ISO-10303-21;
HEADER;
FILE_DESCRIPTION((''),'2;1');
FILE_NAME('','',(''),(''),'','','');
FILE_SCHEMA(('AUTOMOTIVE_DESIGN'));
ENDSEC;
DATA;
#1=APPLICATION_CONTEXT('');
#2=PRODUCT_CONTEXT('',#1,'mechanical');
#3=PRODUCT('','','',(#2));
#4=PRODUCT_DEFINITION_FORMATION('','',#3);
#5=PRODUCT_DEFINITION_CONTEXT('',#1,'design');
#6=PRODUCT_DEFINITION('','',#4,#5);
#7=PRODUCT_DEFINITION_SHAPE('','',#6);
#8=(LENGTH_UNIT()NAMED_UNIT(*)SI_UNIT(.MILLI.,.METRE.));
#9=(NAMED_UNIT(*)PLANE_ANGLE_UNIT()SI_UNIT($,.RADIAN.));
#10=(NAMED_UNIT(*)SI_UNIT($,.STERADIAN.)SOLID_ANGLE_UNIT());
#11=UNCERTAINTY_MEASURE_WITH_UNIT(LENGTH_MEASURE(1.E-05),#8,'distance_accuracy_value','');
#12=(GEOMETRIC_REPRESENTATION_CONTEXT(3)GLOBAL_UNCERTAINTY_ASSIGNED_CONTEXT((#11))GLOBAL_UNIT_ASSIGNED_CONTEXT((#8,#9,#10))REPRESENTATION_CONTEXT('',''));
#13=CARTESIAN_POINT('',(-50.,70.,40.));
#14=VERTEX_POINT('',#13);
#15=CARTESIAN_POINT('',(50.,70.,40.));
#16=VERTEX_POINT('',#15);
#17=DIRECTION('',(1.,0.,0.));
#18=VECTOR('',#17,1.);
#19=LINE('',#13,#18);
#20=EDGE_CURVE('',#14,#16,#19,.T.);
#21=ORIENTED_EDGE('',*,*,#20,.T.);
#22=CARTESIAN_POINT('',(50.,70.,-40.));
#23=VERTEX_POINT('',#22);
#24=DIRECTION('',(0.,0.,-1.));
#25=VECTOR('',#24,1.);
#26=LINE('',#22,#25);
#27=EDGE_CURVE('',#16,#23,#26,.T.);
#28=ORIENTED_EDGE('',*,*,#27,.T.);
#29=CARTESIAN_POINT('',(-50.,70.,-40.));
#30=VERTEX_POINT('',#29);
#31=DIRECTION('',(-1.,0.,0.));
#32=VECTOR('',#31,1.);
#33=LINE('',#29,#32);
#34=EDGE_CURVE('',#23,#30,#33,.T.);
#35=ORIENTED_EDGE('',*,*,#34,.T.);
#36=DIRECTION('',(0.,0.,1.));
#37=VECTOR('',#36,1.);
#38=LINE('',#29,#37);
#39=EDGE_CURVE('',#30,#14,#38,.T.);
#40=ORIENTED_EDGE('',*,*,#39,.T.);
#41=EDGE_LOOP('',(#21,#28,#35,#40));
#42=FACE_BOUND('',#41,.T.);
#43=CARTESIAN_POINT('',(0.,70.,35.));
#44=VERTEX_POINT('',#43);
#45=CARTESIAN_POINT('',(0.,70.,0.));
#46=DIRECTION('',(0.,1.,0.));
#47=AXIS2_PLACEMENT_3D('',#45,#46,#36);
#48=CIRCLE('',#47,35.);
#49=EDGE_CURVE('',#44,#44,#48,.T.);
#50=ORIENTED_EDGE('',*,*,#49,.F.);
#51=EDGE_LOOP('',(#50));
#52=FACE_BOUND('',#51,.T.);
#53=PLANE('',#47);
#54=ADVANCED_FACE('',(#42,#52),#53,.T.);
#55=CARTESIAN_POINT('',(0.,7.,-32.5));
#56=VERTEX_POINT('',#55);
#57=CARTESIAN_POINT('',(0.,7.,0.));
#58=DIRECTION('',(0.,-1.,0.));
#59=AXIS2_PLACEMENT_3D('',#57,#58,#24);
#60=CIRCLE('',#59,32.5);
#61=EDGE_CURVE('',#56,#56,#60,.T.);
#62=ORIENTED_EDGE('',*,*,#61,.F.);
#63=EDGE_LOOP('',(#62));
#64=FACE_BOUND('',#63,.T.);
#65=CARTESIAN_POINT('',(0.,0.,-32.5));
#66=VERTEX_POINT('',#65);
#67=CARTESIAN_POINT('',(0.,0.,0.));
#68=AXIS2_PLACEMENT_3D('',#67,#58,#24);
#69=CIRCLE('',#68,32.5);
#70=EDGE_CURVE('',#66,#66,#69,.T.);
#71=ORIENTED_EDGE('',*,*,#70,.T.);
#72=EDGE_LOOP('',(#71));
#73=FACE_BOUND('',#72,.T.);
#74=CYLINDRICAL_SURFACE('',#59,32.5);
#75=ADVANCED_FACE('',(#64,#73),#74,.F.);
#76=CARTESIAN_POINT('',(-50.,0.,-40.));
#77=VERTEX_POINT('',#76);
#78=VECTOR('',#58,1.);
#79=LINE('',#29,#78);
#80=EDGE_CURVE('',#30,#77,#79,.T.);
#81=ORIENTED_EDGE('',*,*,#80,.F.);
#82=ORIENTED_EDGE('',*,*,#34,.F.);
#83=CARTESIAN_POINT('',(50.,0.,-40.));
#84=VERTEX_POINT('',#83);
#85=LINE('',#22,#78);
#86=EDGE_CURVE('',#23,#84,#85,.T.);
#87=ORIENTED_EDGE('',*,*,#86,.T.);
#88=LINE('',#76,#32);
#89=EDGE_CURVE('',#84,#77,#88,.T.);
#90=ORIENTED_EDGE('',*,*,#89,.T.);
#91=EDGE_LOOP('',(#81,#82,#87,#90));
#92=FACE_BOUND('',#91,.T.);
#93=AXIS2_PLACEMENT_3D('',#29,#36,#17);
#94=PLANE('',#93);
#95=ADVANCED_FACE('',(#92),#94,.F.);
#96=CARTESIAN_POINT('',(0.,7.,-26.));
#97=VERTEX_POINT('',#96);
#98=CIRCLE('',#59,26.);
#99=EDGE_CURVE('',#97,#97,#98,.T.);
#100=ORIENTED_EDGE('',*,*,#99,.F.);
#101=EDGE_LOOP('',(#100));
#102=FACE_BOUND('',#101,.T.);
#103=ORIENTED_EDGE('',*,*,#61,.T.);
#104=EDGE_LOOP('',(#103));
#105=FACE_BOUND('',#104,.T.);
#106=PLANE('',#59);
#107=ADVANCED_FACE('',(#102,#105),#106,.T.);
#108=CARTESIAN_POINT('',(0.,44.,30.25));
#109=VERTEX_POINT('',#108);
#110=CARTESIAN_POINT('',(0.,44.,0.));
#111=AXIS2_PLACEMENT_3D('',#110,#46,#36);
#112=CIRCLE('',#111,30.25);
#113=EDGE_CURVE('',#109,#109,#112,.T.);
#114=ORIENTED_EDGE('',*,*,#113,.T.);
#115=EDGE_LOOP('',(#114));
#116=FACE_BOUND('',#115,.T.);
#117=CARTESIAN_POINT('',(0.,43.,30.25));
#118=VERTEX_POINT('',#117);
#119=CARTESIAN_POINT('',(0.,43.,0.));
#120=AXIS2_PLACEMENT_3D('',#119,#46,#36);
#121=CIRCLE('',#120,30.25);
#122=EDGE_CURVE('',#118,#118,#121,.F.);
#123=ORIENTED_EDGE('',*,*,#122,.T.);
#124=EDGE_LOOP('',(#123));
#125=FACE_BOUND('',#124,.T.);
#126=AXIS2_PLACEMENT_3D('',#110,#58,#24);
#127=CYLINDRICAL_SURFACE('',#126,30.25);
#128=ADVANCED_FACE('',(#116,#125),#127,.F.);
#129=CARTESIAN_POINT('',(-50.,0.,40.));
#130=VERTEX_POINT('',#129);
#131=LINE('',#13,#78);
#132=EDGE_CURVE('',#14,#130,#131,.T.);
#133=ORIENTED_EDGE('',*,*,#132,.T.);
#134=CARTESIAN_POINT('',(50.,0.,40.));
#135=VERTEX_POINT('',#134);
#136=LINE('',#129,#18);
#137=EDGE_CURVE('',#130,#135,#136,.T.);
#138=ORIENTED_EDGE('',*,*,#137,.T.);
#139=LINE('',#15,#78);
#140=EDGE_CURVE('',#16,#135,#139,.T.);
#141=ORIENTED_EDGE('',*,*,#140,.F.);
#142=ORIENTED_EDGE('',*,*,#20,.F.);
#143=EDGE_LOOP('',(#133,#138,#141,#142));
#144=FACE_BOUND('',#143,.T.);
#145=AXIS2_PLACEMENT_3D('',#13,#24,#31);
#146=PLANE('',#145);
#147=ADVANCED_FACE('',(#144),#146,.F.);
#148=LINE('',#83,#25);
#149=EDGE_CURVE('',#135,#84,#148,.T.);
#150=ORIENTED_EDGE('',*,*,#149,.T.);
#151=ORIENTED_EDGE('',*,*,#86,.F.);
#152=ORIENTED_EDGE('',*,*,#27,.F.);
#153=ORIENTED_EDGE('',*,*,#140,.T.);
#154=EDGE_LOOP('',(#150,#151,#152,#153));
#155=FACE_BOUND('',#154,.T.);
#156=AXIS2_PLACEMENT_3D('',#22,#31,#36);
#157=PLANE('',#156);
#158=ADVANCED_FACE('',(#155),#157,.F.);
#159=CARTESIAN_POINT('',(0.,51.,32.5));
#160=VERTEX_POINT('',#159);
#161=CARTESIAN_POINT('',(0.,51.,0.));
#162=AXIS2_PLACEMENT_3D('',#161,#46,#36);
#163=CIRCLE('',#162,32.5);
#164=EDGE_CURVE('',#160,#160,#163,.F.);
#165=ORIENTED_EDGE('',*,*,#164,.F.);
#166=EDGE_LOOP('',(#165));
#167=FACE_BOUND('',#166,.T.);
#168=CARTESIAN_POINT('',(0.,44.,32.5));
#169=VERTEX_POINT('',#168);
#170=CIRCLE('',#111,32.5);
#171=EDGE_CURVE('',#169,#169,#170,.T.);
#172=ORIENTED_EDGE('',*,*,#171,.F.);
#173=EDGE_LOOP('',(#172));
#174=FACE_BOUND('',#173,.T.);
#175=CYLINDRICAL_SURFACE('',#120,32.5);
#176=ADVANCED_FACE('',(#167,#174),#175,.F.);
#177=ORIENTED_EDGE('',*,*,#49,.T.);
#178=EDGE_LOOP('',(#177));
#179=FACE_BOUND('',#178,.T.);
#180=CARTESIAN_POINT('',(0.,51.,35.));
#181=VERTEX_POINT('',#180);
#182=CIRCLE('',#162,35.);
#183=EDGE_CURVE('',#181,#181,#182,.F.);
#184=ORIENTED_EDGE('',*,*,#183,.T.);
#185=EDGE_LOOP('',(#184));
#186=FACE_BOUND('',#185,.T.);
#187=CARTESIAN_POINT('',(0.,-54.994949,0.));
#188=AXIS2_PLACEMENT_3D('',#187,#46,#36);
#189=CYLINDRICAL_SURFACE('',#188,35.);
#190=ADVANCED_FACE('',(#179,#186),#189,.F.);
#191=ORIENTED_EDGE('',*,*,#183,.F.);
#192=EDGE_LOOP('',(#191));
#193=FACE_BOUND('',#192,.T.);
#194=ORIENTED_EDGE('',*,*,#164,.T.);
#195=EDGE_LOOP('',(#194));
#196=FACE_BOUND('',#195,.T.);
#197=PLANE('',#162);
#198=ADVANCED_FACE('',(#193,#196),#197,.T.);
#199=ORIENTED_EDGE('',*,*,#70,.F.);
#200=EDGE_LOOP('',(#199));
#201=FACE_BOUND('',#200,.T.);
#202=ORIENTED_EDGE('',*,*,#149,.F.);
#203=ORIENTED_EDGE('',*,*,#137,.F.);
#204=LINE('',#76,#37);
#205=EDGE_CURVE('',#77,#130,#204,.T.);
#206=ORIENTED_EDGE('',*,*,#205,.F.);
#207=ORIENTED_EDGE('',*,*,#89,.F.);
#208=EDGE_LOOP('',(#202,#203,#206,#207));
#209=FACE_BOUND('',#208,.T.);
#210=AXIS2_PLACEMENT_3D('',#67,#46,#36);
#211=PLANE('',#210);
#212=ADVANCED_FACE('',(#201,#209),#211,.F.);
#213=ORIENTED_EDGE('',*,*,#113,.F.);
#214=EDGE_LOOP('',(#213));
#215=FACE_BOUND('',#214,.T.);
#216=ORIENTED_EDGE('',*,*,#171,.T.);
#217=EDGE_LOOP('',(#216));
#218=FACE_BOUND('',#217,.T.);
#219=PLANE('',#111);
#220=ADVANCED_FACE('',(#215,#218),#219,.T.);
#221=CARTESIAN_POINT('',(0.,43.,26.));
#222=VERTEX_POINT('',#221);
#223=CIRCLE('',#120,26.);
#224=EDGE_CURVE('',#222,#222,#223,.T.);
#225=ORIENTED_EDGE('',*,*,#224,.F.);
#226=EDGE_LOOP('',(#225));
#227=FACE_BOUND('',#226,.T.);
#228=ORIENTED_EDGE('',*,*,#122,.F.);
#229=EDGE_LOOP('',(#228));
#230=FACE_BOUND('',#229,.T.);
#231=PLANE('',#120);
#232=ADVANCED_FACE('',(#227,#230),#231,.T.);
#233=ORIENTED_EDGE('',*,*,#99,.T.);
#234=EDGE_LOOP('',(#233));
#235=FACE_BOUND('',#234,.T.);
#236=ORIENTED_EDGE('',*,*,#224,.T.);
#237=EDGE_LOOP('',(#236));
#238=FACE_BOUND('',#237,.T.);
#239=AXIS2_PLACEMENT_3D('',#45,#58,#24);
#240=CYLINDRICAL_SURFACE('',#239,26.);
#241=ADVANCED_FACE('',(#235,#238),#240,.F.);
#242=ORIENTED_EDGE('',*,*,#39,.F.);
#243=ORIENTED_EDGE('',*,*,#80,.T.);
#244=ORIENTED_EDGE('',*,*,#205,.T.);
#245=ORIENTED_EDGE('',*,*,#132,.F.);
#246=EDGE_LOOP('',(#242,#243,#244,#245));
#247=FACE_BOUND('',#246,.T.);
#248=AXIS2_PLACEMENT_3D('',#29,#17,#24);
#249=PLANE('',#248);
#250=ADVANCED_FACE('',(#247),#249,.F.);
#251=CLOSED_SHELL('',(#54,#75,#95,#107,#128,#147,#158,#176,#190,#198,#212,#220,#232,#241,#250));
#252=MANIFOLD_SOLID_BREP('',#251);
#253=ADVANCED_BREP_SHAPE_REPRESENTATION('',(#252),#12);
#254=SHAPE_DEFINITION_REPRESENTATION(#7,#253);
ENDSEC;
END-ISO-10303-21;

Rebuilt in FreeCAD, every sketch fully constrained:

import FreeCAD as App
import Part
import Sketcher
from FreeCAD import Vector


def add_polygon(sketch, points):
    """Adds a closed chain of lines whose ends are joined by coincident constraints."""
    first, n = sketch.GeometryCount, len(points)
    for a, b in zip(points, points[1:] + points[:1]):
        sketch.addGeometry(Part.LineSegment(App.Vector(*a, 0), App.Vector(*b, 0)), False)
    for i in range(n):
        sketch.addConstraint(Sketcher.Constraint("Coincident", first + i, 2, first + (i + 1) % n, 1))

doc = App.newDocument("Part")
body = doc.addObject("PartDesign::Body", "Body")

# Sketch on XZ plane
sketch1 = body.newObject("Sketcher::SketchObject", "Sketch")
sketch1.AttachmentSupport = (doc.getObject("XZ_Plane"), [""])
sketch1.MapMode = "FlatFace"
add_polygon(sketch1, [(-50, -40), (-50, 40), (50, 40), (50, -40)])  # lines 0-3
sketch1.addGeometry(Part.Circle(Vector(0, 0, 0), Vector(0, 0, 1), 26), False)  # 4
sketch1.addConstraint([
    Sketcher.Constraint("Vertical", 0),
    Sketcher.Constraint("Horizontal", 1),
    Sketcher.Constraint("Vertical", 2),
    Sketcher.Constraint("Horizontal", 3),
    Sketcher.Constraint("Coincident", 4, 3, -1, 1),
    Sketcher.Constraint("Symmetric", 0, 2, 2, 2, -1, 1),
    Sketcher.Constraint("Diameter", 4, 52.0),
    Sketcher.Constraint("DistanceX", 1, 1, 1, 2, 100.0),
    Sketcher.Constraint("DistanceY", 0, 1, 0, 2, 80.0),
])
pad1 = body.newObject("PartDesign::Pad", "Pad")
pad1.Profile = sketch1
pad1.Length = 70
pad1.Reversed = True

# Sketch on XZ plane
sketch2 = body.newObject("Sketcher::SketchObject", "Sketch001")
sketch2.AttachmentSupport = (doc.getObject("XZ_Plane"), [""])
sketch2.MapMode = "FlatFace"
sketch2.AttachmentOffset = App.Placement(Vector(0, 0, -70), App.Rotation())
sketch2.addGeometry(Part.Circle(Vector(0, 0, 0), Vector(0, 0, 1), 32.5), False)
sketch2.addConstraint([
    Sketcher.Constraint("Coincident", 0, 3, -1, 1),
    Sketcher.Constraint("Diameter", 0, 65.0),
])
pocket1 = body.newObject("PartDesign::Pocket", "Pocket")
pocket1.Profile = sketch2
pocket1.Length = 27
pocket1.Reversed = True

# Sketch on XZ plane
sketch3 = body.newObject("Sketcher::SketchObject", "Sketch002")
sketch3.AttachmentSupport = (doc.getObject("XZ_Plane"), [""])
sketch3.MapMode = "FlatFace"
sketch3.AttachmentOffset = App.Placement(Vector(0, 0, -44), App.Rotation())
sketch3.addGeometry([
    Part.Circle(Vector(0, 0, 0), Vector(0, 0, 1), 32.5),
    Part.Circle(Vector(0, 0, 0), Vector(0, 0, 1), 30.25),
], False)
sketch3.addConstraint([
    Sketcher.Constraint("Coincident", 0, 3, -1, 1),
    Sketcher.Constraint("Coincident", 1, 3, -1, 1),
    Sketcher.Constraint("Diameter", 0, 65.0),
    Sketcher.Constraint("Diameter", 1, 60.5),
])
pad2 = body.newObject("PartDesign::Pad", "Pad001")
pad2.Profile = sketch3
pad2.Length = 1

# Sketch on XZ plane
sketch4 = body.newObject("Sketcher::SketchObject", "Sketch003")
sketch4.AttachmentSupport = (doc.getObject("XZ_Plane"), [""])
sketch4.MapMode = "FlatFace"
sketch4.AttachmentOffset = App.Placement(Vector(0, 0, -70), App.Rotation())
sketch4.addGeometry(Part.Circle(Vector(0, 0, 0), Vector(0, 0, 1), 35), False)
sketch4.addConstraint([
    Sketcher.Constraint("Coincident", 0, 3, -1, 1),
    Sketcher.Constraint("Diameter", 0, 70.0),
])
pocket2 = body.newObject("PartDesign::Pocket", "Pocket001")
pocket2.Profile = sketch4
pocket2.Length = 19
pocket2.Reversed = True

# Sketch on XZ plane
sketch5 = body.newObject("Sketcher::SketchObject", "Sketch004")
sketch5.AttachmentSupport = (doc.getObject("XZ_Plane"), [""])
sketch5.MapMode = "FlatFace"
sketch5.AttachmentOffset = App.Placement(Vector(0, 0, -7), App.Rotation())
sketch5.addGeometry(Part.Circle(Vector(0, 0, 0), Vector(0, 0, 1), 32.5), False)
sketch5.addConstraint([
    Sketcher.Constraint("Coincident", 0, 3, -1, 1),
    Sketcher.Constraint("Diameter", 0, 65.0),
])
pocket3 = body.newObject("PartDesign::Pocket", "Pocket002")
pocket3.Profile = sketch5
pocket3.Length = 7
pocket3.Reversed = True

doc.recompute()
